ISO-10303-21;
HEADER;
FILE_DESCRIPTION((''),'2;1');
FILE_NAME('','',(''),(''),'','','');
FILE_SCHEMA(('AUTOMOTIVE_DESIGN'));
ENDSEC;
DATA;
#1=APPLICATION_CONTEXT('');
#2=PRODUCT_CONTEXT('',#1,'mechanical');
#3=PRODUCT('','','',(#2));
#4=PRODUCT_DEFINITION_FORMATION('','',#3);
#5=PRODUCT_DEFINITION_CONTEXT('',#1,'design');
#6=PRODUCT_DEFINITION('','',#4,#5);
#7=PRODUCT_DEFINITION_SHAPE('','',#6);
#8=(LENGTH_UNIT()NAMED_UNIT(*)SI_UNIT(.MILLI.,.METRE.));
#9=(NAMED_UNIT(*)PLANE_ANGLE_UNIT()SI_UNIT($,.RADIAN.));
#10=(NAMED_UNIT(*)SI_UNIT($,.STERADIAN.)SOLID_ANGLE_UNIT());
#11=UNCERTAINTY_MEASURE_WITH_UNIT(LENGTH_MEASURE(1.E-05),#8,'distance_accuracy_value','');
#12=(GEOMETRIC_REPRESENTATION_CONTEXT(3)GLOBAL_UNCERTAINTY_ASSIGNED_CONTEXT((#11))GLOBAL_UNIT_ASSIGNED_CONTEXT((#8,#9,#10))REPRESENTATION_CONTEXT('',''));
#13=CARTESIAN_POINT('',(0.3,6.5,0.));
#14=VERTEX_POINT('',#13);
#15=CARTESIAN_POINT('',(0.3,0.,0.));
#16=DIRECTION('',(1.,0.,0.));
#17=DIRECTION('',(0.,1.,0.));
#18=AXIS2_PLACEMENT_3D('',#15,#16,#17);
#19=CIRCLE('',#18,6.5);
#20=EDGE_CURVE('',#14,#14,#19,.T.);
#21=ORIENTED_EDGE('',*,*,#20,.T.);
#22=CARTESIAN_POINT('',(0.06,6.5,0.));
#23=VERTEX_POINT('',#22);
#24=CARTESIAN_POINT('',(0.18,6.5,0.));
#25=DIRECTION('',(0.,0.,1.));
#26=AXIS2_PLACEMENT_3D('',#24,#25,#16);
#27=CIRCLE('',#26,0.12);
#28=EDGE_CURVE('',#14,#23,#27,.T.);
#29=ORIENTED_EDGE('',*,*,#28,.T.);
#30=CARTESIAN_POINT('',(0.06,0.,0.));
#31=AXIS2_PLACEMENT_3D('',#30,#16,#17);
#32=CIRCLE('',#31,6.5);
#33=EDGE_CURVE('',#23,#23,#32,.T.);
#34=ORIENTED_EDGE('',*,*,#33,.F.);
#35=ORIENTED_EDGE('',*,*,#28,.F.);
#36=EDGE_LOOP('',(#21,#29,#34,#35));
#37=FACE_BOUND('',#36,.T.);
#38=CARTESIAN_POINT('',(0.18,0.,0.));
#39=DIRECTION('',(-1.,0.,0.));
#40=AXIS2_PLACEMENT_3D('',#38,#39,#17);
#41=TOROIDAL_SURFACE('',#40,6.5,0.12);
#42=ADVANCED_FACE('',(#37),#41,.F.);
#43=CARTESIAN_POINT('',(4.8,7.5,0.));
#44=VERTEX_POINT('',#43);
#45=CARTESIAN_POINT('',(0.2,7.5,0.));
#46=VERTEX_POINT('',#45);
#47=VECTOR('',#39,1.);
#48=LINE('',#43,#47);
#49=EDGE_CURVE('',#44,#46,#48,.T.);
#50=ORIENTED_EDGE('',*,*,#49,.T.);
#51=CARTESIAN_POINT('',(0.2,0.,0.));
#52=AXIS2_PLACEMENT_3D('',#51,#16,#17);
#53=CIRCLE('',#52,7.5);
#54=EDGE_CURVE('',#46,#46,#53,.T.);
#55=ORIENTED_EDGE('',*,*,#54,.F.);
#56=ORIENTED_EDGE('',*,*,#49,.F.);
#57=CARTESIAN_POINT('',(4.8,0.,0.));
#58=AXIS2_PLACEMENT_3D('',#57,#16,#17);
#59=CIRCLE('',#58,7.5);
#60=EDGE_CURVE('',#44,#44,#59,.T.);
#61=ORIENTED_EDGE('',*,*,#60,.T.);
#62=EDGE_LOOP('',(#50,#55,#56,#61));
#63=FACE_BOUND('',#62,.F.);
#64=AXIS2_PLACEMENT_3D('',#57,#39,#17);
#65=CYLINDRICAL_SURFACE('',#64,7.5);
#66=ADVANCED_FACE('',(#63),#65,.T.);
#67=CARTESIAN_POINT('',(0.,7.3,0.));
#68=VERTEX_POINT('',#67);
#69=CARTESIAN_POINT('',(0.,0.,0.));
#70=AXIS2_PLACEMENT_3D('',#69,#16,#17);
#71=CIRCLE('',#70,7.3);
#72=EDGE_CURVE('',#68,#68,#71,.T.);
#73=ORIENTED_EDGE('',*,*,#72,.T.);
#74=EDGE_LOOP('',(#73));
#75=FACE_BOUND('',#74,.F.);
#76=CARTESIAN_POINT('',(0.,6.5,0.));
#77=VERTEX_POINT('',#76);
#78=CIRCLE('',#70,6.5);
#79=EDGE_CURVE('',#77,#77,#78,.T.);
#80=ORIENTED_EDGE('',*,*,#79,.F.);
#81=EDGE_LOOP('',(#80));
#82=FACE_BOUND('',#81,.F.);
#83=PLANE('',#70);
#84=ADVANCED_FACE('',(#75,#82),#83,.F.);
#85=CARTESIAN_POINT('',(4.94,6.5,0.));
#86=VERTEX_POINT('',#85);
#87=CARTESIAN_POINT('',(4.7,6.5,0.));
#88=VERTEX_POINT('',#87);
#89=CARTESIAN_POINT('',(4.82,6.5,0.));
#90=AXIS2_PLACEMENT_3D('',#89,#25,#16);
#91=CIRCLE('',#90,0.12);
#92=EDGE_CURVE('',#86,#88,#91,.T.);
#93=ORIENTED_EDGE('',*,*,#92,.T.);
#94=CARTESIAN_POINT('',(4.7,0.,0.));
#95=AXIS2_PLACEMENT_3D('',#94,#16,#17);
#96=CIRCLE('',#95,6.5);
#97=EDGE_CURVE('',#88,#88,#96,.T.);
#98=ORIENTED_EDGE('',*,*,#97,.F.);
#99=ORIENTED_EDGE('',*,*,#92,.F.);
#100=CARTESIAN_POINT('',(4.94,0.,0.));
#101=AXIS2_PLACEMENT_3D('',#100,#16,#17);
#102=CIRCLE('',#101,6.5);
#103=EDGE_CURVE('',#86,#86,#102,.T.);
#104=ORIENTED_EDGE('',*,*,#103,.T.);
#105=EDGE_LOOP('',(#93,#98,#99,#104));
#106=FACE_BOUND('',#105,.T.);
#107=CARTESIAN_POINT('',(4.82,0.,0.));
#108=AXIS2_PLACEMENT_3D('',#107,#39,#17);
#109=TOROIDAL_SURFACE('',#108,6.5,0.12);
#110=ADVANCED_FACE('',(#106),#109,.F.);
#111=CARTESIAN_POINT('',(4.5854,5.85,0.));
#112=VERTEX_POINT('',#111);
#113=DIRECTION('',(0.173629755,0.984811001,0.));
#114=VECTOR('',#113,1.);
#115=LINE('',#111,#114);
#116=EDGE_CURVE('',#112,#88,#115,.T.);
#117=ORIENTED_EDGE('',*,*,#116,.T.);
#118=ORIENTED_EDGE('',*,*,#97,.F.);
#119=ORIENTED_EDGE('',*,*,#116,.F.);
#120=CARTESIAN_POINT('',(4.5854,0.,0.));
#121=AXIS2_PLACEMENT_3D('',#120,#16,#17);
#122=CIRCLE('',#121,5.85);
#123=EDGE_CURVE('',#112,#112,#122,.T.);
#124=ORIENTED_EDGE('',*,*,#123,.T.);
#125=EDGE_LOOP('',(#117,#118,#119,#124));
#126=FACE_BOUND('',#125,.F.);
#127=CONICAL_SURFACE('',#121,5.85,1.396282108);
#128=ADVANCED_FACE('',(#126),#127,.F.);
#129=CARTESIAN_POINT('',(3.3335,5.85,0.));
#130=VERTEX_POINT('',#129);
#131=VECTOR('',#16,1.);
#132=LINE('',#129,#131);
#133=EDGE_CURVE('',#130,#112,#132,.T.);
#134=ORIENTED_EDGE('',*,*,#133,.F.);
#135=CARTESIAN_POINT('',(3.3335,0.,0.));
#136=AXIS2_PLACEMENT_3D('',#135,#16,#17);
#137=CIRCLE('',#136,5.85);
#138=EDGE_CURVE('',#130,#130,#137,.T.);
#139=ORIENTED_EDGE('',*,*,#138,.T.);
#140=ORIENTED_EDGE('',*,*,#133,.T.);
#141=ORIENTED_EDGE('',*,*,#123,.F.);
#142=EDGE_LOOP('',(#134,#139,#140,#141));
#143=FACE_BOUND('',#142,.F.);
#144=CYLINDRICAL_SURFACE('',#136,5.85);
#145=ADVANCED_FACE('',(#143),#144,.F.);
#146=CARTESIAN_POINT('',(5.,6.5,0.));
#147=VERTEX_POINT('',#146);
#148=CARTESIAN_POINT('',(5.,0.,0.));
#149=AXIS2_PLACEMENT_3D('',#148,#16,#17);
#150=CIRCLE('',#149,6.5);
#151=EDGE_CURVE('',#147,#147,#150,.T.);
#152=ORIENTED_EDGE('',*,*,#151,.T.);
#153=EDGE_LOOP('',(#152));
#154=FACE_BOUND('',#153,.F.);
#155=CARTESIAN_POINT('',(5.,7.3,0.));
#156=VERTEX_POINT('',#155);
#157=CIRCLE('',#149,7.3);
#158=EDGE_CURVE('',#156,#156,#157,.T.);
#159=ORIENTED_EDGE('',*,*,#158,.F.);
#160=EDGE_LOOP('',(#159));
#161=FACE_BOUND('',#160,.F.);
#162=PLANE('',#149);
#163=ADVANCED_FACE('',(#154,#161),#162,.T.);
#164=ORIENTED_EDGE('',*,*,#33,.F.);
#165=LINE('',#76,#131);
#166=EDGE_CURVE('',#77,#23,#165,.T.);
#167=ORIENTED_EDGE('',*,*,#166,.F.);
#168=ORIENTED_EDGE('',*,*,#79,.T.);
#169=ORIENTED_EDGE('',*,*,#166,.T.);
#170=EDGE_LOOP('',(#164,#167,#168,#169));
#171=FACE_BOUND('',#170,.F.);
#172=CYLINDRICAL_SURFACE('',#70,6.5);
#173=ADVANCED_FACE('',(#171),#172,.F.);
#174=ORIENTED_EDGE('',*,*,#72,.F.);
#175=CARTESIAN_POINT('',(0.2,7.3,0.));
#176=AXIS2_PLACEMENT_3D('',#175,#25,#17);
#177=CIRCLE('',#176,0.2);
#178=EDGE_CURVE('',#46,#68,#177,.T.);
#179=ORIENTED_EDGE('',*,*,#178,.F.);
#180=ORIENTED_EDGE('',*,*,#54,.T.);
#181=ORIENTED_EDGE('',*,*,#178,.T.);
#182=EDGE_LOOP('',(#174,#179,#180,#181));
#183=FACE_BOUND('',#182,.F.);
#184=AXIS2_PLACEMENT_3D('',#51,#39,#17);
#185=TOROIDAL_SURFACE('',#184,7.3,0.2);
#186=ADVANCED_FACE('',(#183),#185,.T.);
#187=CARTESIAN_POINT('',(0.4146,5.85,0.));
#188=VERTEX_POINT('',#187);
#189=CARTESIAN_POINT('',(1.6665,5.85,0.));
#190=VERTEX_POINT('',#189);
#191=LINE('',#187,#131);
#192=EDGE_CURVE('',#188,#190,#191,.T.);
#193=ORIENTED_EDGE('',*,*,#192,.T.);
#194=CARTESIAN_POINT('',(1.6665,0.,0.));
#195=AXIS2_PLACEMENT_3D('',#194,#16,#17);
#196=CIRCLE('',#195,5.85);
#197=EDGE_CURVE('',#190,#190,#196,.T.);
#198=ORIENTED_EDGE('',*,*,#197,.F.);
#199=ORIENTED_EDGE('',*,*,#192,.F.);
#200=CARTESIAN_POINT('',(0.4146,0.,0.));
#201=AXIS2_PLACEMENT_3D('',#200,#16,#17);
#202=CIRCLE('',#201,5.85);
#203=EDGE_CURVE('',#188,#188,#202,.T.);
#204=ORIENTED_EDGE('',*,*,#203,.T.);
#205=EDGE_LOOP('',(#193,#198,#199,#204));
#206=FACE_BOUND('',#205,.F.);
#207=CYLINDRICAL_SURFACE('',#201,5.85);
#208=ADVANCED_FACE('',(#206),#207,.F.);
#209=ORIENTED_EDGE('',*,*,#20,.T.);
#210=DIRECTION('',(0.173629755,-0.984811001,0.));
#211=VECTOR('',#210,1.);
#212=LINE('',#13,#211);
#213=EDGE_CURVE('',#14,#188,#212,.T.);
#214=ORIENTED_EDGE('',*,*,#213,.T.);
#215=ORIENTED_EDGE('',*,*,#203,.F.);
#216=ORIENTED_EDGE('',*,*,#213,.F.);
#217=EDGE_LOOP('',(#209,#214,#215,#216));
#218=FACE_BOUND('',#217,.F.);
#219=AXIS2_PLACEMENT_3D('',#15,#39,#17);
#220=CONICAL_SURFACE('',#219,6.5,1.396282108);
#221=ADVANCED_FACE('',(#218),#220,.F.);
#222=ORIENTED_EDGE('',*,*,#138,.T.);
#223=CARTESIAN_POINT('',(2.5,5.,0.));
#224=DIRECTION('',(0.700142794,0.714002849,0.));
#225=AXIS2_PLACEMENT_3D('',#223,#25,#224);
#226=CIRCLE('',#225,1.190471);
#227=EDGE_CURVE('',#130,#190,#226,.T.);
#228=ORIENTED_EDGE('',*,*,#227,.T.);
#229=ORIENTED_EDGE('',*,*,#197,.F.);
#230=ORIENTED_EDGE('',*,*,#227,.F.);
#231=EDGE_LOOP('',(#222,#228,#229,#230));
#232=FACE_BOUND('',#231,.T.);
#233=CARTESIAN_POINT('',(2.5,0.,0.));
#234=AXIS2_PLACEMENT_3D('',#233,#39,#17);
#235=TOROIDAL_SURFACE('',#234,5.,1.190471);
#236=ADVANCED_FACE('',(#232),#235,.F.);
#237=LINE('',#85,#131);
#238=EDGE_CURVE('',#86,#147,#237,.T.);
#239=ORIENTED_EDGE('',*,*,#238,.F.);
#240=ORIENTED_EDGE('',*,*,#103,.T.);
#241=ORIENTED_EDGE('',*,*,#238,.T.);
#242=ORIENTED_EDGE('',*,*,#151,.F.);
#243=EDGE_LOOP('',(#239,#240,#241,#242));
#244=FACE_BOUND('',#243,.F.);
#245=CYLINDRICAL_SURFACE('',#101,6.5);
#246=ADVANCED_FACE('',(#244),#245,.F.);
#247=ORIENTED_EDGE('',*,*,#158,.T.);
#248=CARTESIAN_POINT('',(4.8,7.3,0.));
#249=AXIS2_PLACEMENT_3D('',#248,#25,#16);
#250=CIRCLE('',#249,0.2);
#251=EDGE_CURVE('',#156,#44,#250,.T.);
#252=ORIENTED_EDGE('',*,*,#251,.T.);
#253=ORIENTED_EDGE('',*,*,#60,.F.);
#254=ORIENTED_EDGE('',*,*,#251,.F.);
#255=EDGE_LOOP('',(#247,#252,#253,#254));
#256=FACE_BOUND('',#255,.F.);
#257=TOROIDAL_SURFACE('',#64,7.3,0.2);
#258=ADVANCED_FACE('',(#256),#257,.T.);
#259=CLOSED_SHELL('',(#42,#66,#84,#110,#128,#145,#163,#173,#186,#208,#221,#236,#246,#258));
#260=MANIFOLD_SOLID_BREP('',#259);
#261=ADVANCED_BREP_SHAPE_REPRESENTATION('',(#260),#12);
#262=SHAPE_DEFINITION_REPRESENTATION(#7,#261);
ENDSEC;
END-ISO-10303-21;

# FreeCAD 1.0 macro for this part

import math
import FreeCAD as App
import Part
import Sketcher
Q = App.Units.Quantity

doc = App.newDocument("Part")
body = doc.addObject("PartDesign::Body", "Body")

sketch1 = body.newObject("Sketcher::SketchObject", "Sketch")
sketch1.AttachmentSupport = (doc.getObject("XY_Plane"), [""])
sketch1.MapMode = "FlatFace"
sketch1.addGeometry([
    Part.ArcOfCircle(Part.Circle(App.Vector(0.2, 7.3, 0), App.Vector(0, 0, 1), 0.2), math.radians(90), math.radians(180)),
    Part.LineSegment(App.Vector(0, 7.3, 0), App.Vector(0, 6.5, 0)),
    Part.LineSegment(App.Vector(0, 6.5, 0), App.Vector(0.06, 6.5, 0)),
    Part.ArcOfCircle(Part.Circle(App.Vector(0.18, 6.5, 0), App.Vector(0, 0, 1), 0.12), math.radians(0), math.radians(180)),
    Part.LineSegment(App.Vector(0.3, 6.5, 0), App.Vector(0.4146, 5.85, 0)),
    Part.LineSegment(App.Vector(0.4146, 5.85, 0), App.Vector(1.6665, 5.85, 0)),
    Part.ArcOfCircle(Part.Circle(App.Vector(2.5, 5, 0), App.Vector(0, 0, 1), 1.190471), math.radians(45.561539), math.radians(134.438461)),
    Part.LineSegment(App.Vector(3.3335, 5.85, 0), App.Vector(4.5854, 5.85, 0)),
    Part.LineSegment(App.Vector(4.5854, 5.85, 0), App.Vector(4.7, 6.5, 0)),
    Part.ArcOfCircle(Part.Circle(App.Vector(4.82, 6.5, 0), App.Vector(0, 0, 1), 0.12), math.radians(0), math.radians(180)),
    Part.LineSegment(App.Vector(4.94, 6.5, 0), App.Vector(5, 6.5, 0)),
    Part.LineSegment(App.Vector(5, 6.5, 0), App.Vector(5, 7.3, 0)),
    Part.ArcOfCircle(Part.Circle(App.Vector(4.8, 7.3, 0), App.Vector(0, 0, 1), 0.2), math.radians(0), math.radians(90)),
    Part.LineSegment(App.Vector(4.8, 7.5, 0), App.Vector(0.2, 7.5, 0)),
], False)
sketch1.addConstraint([
    Sketcher.Constraint("Tangent", 0, 2, 1, 1),
    Sketcher.Constraint("Coincident", 1, 2, 2, 1),
    Sketcher.Constraint("Coincident", 2, 2, 3, 2),
    Sketcher.Constraint("Coincident", 3, 1, 4, 1),
    Sketcher.Constraint("Coincident", 4, 2, 5, 1),
    Sketcher.Constraint("Coincident", 5, 2, 6, 2),
    Sketcher.Constraint("Coincident", 6, 1, 7, 1),
    Sketcher.Constraint("Coincident", 7, 2, 8, 1),
    Sketcher.Constraint("Coincident", 8, 2, 9, 2),
    Sketcher.Constraint("Coincident", 9, 1, 10, 1),
    Sketcher.Constraint("Coincident", 10, 2, 11, 1),
    Sketcher.Constraint("Tangent", 11, 2, 12, 1),
    Sketcher.Constraint("Tangent", 12, 2, 13, 1),
    Sketcher.Constraint("Tangent", 13, 2, 0, 1),
    Sketcher.Constraint("Vertical", 1),
    Sketcher.Constraint("Horizontal", 2),
    Sketcher.Constraint("Horizontal", 5),
    Sketcher.Constraint("Horizontal", 7),
    Sketcher.Constraint("Horizontal", 10),
    Sketcher.Constraint("Vertical", 11),
    Sketcher.Constraint("Horizontal", 13),
    Sketcher.Constraint("Equal", 3, 9),
    Sketcher.Constraint("Equal", 0, 12),
    Sketcher.Constraint("PointOnObject", 0, 2, -2),
    Sketcher.Constraint("Horizontal", 3, 3, 9, 3),
    Sketcher.Constraint("Horizontal", 9, 3, 1, 2),
    Sketcher.Constraint("Horizontal", 2, 2, 3, 1),
    Sketcher.Constraint("Horizontal", 5, 2, 6, 1),
    Sketcher.Constraint("Horizontal", 3, 1, 8, 2),
    Sketcher.Constraint("Horizontal", 8, 2, 9, 1),
    Sketcher.Constraint("Equal", 5, 7),
    Sketcher.Constraint("Equal", 2, 10),
    Sketcher.Constraint("Equal", 4, 8),
    Sketcher.Constraint("Radius", 0, Q("0.2 mm")),
    Sketcher.Constraint("Angle", 4, Q("-80.001 deg")),
    Sketcher.Constraint("Radius", 3, Q("0.12 mm")),
    Sketcher.Constraint("DistanceX", 13, 2, 13, 1, Q("4.6 mm")),
    Sketcher.Constraint("DistanceY", 1, 2, 1, 1, Q("0.8 mm")),
    Sketcher.Constraint("DistanceY", -1, 1, 6, 3, Q("5 mm")),
    Sketcher.Constraint("DistanceX", 2, 1, 2, 2, Q("0.06 mm")),
    Sketcher.Constraint("DistanceY", -1, 1, 0, 3, Q("7.3 mm")),
    Sketcher.Constraint("Radius", 6, Q("1.1905 mm")),
    Sketcher.Constraint("Distance", 4, Q("0.66 mm")),
])
revolution = body.newObject("PartDesign::Revolution", "Revolution")
revolution.Profile = sketch1
revolution.ReferenceAxis = (sketch1, ["H_Axis"])
revolution.Angle = 360

doc.recompute()
